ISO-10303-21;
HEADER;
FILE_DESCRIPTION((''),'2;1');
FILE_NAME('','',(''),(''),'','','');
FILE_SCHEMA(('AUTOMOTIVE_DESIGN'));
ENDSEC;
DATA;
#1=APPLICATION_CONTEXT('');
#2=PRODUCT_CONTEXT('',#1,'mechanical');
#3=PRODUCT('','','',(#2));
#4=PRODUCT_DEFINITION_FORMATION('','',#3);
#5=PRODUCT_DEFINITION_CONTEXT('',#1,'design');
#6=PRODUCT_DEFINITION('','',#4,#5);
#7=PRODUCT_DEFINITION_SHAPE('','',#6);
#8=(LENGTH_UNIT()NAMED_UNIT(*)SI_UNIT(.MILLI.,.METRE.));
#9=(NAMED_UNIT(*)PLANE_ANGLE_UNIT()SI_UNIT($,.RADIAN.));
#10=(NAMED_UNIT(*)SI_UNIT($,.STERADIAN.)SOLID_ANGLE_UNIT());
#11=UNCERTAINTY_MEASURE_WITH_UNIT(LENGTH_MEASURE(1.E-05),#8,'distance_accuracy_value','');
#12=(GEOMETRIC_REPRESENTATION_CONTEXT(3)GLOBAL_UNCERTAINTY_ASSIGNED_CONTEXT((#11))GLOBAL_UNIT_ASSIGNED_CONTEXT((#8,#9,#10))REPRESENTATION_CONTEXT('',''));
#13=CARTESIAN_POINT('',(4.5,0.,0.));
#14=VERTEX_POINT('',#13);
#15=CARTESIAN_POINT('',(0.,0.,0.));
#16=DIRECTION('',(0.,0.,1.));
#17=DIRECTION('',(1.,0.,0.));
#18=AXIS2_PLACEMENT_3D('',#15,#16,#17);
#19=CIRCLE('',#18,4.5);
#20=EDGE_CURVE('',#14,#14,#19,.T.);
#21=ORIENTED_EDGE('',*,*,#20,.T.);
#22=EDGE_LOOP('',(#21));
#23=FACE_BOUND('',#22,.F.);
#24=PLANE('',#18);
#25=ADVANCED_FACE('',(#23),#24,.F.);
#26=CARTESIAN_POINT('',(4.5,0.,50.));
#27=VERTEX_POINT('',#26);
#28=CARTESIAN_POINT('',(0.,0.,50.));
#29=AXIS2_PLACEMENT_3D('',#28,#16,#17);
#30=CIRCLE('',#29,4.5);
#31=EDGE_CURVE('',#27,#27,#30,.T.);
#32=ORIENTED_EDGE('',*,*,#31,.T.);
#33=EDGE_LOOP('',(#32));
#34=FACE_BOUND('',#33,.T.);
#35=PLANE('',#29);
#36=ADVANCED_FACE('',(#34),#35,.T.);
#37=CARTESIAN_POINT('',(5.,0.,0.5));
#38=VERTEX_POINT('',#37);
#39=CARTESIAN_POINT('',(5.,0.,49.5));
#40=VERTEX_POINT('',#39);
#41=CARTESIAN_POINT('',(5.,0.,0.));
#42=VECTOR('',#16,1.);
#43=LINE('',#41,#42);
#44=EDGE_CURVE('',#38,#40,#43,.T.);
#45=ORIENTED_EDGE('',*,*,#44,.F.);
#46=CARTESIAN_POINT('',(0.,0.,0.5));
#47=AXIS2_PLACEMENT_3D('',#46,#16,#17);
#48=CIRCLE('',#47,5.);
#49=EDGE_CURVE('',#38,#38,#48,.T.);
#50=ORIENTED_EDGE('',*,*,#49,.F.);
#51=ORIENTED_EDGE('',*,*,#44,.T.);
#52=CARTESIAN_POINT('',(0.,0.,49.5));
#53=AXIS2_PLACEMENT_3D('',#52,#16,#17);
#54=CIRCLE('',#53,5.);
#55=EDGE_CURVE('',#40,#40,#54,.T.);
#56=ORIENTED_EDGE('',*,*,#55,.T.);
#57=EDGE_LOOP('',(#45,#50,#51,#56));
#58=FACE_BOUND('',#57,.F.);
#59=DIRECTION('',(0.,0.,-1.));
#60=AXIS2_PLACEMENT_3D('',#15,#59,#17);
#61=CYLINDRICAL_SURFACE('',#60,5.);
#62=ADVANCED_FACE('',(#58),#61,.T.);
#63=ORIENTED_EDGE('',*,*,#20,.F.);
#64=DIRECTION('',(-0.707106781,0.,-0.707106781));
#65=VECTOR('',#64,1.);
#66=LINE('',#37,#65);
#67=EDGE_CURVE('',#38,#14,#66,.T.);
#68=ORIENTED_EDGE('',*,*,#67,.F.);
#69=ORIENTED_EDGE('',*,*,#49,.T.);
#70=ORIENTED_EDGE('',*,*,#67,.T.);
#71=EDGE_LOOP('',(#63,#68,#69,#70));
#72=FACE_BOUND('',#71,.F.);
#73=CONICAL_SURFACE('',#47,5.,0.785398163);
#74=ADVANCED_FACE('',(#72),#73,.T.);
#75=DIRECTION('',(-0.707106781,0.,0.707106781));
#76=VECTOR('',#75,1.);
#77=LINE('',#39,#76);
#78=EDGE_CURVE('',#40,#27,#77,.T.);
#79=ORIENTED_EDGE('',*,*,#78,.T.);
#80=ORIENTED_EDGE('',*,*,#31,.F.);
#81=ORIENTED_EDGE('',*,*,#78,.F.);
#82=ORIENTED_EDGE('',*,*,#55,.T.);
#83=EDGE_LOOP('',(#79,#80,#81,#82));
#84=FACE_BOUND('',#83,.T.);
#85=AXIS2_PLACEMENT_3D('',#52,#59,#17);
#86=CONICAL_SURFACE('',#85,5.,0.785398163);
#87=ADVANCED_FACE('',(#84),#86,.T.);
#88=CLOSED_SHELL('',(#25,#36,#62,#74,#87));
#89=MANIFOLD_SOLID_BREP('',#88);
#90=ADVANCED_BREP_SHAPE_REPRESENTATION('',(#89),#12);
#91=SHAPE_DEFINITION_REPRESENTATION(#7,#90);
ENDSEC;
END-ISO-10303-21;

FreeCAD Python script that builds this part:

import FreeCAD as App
import Part
import Sketcher

V = App.Vector
Q = App.Units.Quantity


def edges_at(feature, points):
    """Names of the edges that pass closest to the given points."""
    edges = feature.Shape.Edges
    near = lambda p: min(range(len(edges)), key=lambda i: edges[i].distToShape(Part.Vertex(*p))[0])
    return sorted({f"Edge{near(p) + 1}" for p in points})

doc = App.newDocument("Part")
params = doc.addObject("Spreadsheet::Sheet", "Params")
for row, (alias, value) in enumerate([
    ("sketch1_diameter", "10 mm"),
    ("pad1_length", "50 mm"),
    ("chamfer_size", "0.5 mm"),
], start=1):
    params.set(f"A{row}", alias)
    params.set(f"B{row}", "=" + value)
    params.setAlias(f"B{row}", alias)

body = doc.addObject("PartDesign::Body", "Body")

sketch1 = body.newObject("Sketcher::SketchObject", "Sketch")
sketch1.AttachmentSupport = (doc.getObject("XY_Plane"), [""])
sketch1.MapMode = "FlatFace"
sketch1.addGeometry(Part.Circle(V(0, 0, 0), V(0, 0, 1), 5), False)
sketch1.addConstraint(Sketcher.Constraint("Coincident", 0, 3, -1, 1))
sketch1.addConstraint(Sketcher.Constraint("Diameter", 0, Q("10 mm")))
sketch1.setExpression("Constraints[1]", "Params.sketch1_diameter")
pad1 = body.newObject("PartDesign::Pad", "Pad")
pad1.Profile = sketch1
pad1.setExpression("Length", "Params.pad1_length")
doc.recompute()

chamfer = body.newObject("PartDesign::Chamfer", "Chamfer")
chamfer.Base = (pad1, edges_at(pad1, [(-5, 0, 50), (-5, 0, 0)]))
chamfer.setExpression("Size", "Params.chamfer_size")

doc.recompute()
